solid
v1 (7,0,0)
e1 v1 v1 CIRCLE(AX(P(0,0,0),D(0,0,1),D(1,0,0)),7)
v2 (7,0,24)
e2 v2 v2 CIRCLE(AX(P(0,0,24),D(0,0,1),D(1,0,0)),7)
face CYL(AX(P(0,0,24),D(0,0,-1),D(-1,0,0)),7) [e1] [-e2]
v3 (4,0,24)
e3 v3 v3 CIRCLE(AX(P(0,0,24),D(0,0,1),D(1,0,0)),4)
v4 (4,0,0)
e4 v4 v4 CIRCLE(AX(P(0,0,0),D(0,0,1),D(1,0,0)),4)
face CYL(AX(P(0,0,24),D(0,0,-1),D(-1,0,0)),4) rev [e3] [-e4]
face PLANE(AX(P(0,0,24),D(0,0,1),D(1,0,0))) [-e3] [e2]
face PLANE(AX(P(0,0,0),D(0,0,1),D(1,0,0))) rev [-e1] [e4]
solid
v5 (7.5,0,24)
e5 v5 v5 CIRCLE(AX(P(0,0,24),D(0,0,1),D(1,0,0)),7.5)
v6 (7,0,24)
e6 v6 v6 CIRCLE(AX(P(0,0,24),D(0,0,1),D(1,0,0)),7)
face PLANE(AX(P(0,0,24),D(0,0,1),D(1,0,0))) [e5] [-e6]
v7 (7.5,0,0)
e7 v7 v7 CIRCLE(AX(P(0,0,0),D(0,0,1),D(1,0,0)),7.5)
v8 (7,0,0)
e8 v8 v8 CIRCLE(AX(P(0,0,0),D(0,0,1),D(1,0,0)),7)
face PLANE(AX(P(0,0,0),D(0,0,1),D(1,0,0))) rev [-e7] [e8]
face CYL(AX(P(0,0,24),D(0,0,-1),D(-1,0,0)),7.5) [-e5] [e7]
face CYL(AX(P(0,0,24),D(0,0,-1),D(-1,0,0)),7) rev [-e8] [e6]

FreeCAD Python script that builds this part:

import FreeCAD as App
import Part
import Sketcher
from FreeCAD import Vector

doc = App.newDocument("Part")
body = doc.addObject("PartDesign::Body", "Body")

sketch1 = doc.addObject("Sketcher::SketchObject", "Sketch")
body.addObject(sketch1)
sketch1.AttachmentSupport = (doc.XY_Plane, [""])
sketch1.MapMode = "FlatFace"
sketch1.addGeometry([
    Part.Circle(Vector(0, 0, 0), Vector(0, 0, 1), 7),
    Part.Circle(Vector(0, 0, 0), Vector(0, 0, 1), 4),
], False)
sketch1.addConstraint([
    Sketcher.Constraint("Coincident", 0, 3, -1, 1),
    Sketcher.Constraint("Coincident", 1, 3, -1, 1),
    Sketcher.Constraint("Diameter", 0, 14.0),
    Sketcher.Constraint("Diameter", 1, 8.0),
])
pad1 = doc.addObject("PartDesign::Pad", "Pad")
body.addObject(pad1)
pad1.Profile = sketch1
pad1.Length = 24
body2 = doc.addObject("PartDesign::Body", "Body001")

sketch2 = doc.addObject("Sketcher::SketchObject", "Sketch001")
body2.addObject(sketch2)
sketch2.AttachmentSupport = (doc.getObject("XY_Plane001"), [""])
sketch2.MapMode = "FlatFace"
sketch2.addGeometry([
    Part.Circle(Vector(0, 0, 0), Vector(0, 0, 1), 8),
    Part.Circle(Vector(0, 0, 0), Vector(0, 0, 1), 7),
], False)
sketch2.addConstraint([
    Sketcher.Constraint("Coincident", 0, 3, -1, 1),
    Sketcher.Constraint("Coincident", 1, 3, -1, 1),
    Sketcher.Constraint("Diameter", 0, 15.0),
    Sketcher.Constraint("Diameter", 1, 14.0),
])
pad2 = doc.addObject("PartDesign::Pad", "Pad001")
body2.addObject(pad2)
pad2.Profile = sketch2
pad2.Length = 24

doc.recompute()
